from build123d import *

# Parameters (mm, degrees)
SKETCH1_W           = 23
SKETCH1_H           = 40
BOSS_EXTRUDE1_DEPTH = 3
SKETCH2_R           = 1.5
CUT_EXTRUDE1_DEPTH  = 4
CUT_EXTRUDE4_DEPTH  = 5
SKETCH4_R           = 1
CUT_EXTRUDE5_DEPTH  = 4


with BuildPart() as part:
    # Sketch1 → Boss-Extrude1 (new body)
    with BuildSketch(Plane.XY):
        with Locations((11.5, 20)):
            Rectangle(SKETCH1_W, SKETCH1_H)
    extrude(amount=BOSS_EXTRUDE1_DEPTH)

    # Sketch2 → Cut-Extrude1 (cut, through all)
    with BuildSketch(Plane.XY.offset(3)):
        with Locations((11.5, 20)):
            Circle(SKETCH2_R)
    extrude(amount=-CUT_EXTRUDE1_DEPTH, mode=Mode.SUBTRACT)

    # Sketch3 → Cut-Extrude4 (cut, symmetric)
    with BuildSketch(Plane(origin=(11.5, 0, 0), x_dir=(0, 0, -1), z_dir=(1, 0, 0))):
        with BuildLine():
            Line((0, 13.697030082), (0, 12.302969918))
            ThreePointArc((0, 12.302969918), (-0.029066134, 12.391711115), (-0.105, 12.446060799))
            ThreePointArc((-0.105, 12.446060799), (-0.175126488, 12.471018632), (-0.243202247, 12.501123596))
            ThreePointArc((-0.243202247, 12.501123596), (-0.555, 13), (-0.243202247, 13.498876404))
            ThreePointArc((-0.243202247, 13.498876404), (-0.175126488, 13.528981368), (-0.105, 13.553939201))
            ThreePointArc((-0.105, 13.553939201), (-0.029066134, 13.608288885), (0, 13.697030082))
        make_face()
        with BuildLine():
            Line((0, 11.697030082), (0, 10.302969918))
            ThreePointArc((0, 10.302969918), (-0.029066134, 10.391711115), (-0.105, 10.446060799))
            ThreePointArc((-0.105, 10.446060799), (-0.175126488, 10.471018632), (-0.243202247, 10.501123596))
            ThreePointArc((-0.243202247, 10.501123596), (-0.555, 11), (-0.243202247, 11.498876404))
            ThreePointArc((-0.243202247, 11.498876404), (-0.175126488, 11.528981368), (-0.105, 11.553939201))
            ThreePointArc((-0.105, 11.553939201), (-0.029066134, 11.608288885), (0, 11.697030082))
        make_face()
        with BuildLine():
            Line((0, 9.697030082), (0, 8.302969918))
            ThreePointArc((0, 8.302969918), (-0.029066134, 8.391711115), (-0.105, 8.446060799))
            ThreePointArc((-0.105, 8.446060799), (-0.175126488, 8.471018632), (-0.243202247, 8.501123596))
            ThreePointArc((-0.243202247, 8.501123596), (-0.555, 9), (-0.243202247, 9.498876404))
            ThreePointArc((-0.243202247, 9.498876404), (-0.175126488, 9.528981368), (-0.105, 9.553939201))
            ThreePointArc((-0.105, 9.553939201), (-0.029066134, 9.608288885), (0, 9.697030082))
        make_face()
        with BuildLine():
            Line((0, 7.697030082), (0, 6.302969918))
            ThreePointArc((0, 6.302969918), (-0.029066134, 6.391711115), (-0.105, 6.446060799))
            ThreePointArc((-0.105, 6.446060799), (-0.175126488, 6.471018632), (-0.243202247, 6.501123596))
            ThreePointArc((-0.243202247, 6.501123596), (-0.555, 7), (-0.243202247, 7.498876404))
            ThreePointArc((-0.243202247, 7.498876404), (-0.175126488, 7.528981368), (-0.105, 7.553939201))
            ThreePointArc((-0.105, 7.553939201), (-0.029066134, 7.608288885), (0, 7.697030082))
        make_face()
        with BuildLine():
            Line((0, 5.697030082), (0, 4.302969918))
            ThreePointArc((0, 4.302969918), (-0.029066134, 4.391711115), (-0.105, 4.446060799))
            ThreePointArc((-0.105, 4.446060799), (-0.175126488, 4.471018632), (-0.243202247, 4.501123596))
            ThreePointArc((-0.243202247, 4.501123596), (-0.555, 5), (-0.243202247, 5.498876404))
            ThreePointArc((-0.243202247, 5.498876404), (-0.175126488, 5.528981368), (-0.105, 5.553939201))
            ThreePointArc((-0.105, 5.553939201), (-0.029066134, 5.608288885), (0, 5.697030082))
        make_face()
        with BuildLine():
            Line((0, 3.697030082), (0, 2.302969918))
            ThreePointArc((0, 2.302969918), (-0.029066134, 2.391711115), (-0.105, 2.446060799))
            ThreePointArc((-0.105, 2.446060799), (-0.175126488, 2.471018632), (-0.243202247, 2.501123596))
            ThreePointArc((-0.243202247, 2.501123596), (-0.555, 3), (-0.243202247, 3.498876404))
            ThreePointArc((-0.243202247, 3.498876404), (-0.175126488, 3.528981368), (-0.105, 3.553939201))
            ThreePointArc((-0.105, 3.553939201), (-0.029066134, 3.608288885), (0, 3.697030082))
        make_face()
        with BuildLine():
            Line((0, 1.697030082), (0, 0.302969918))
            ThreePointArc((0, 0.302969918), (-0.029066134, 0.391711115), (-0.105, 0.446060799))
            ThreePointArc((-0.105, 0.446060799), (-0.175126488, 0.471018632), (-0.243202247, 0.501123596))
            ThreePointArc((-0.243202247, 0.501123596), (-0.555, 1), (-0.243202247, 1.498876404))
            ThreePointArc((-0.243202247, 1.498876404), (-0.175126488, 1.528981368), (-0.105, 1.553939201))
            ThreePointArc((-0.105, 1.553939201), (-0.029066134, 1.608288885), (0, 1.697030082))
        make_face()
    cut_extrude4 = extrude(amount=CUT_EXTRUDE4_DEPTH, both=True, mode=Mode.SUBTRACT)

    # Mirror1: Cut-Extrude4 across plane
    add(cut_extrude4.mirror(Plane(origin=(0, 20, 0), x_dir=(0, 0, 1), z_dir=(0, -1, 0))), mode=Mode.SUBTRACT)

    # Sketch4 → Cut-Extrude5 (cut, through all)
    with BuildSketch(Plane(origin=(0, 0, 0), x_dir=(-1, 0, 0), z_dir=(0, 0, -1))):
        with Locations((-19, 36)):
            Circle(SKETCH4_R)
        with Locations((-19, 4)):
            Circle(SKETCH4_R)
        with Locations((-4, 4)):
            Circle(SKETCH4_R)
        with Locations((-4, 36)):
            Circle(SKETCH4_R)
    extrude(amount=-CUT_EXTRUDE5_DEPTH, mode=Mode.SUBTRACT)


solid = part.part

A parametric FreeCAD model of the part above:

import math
import FreeCAD as App
import Part
import Sketcher
Q = App.Units.Quantity


def add_polygon(sketch, points):
    """Adds a closed chain of lines whose ends are joined by coincident constraints."""
    first, n = sketch.GeometryCount, len(points)
    for a, b in zip(points, points[1:] + points[:1]):
        sketch.addGeometry(Part.LineSegment(App.Vector(*a, 0), App.Vector(*b, 0)), False)
    for i in range(n):
        sketch.addConstraint(Sketcher.Constraint("Coincident", first + i, 2, first + (i + 1) % n, 1))

doc = App.newDocument("Part")
body = doc.addObject("PartDesign::Body", "Body")

# Sketch on XY plane
sketch1 = body.newObject("Sketcher::SketchObject", "Sketch")
sketch1.AttachmentSupport = (doc.getObject("XY_Plane"), [""])
sketch1.MapMode = "FlatFace"
add_polygon(sketch1, [(0, 40), (0, 0), (23, 0), (23, 40)])  # lines 0-3
sketch1.addConstraint(Sketcher.Constraint("Vertical", 0))
sketch1.addConstraint(Sketcher.Constraint("Horizontal", 1))
sketch1.addConstraint(Sketcher.Constraint("Vertical", 2))
sketch1.addConstraint(Sketcher.Constraint("Horizontal", 3))
sketch1.addConstraint(Sketcher.Constraint("Coincident", 0, 2, -1, 1))
sketch1.addConstraint(Sketcher.Constraint("DistanceX", 1, 1, 1, 2, Q("23 mm")))
sketch1.addConstraint(Sketcher.Constraint("DistanceY", 0, 2, 0, 1, Q("40 mm")))
pad1 = body.newObject("PartDesign::Pad", "Pad")
pad1.Profile = sketch1
pad1.Length = 3

# Sketch on XY plane
sketch2 = body.newObject("Sketcher::SketchObject", "Sketch001")
sketch2.AttachmentSupport = (doc.getObject("XY_Plane"), [""])
sketch2.MapMode = "FlatFace"
sketch2.AttachmentOffset = App.Placement(App.Vector(0, 0, 3), App.Rotation())
sketch2.addGeometry(Part.Circle(App.Vector(11.5, 20, 0), App.Vector(0, 0, 1), 1.5), False)
sketch2.addConstraint(Sketcher.Constraint("Diameter", 0, Q("3 mm")))
sketch2.addConstraint(Sketcher.Constraint("DistanceY", -1, 1, 0, 3, Q("20 mm")))
sketch2.addConstraint(Sketcher.Constraint("DistanceX", -1, 1, 0, 3, Q("11.5 mm")))
pocket1 = body.newObject("PartDesign::Pocket", "Pocket")
pocket1.Profile = sketch2
pocket1.Type = "ThroughAll"

# Sketch on YZ plane
sketch3 = body.newObject("Sketcher::SketchObject", "Sketch002")
sketch3.AttachmentSupport = (doc.getObject("YZ_Plane"), [""])
sketch3.MapMode = "FlatFace"
sketch3.AttachmentOffset = App.Placement(App.Vector(0, 0, 11.5), App.Rotation())
sketch3.addGeometry(Part.LineSegment(App.Vector(12.3, 0, 0), App.Vector(13.7, 0, 0)), False)
sketch3.addGeometry(Part.ArcOfCircle(Part.Circle(App.Vector(13.7, 0.15, 0), App.Vector(0, 0, 1), 0.15), math.radians(-163), math.radians(-90)), False)
sketch3.addGeometry(Part.ArcOfCircle(Part.Circle(App.Vector(12.6, -0.19, 0), App.Vector(0, 0, 1), 1), math.radians(17.46), math.radians(25.99)), False)
sketch3.addGeometry(Part.ArcOfCircle(Part.Circle(App.Vector(13, 0, 0), App.Vector(0, 0, 1), 0.55), math.radians(26), math.radians(154)), False)
sketch3.addGeometry(Part.ArcOfCircle(Part.Circle(App.Vector(13.4, -0.19, 0), App.Vector(0, 0, 1), 1), math.radians(154.01), math.radians(162.54)), False)
sketch3.addGeometry(Part.ArcOfCircle(Part.Circle(App.Vector(12.3, 0.15, 0), App.Vector(0, 0, 1), 0.15), math.radians(-90), math.radians(-17)), False)
sketch3.addGeometry(Part.LineSegment(App.Vector(10.3, 0, 0), App.Vector(11.7, 0, 0)), False)
sketch3.addGeometry(Part.ArcOfCircle(Part.Circle(App.Vector(11.7, 0.15, 0), App.Vector(0, 0, 1), 0.15), math.radians(-163), math.radians(-90)), False)
sketch3.addGeometry(Part.ArcOfCircle(Part.Circle(App.Vector(10.6, -0.19, 0), App.Vector(0, 0, 1), 1), math.radians(17.46), math.radians(25.99)), False)
sketch3.addGeometry(Part.ArcOfCircle(Part.Circle(App.Vector(11, 0, 0), App.Vector(0, 0, 1), 0.55), math.radians(26), math.radians(154)), False)
sketch3.addGeometry(Part.ArcOfCircle(Part.Circle(App.Vector(11.4, -0.19, 0), App.Vector(0, 0, 1), 1), math.radians(154.01), math.radians(162.54)), False)
sketch3.addGeometry(Part.ArcOfCircle(Part.Circle(App.Vector(10.3, 0.15, 0), App.Vector(0, 0, 1), 0.15), math.radians(-90), math.radians(-17)), False)
sketch3.addGeometry(Part.LineSegment(App.Vector(8.3, 0, 0), App.Vector(9.7, 0, 0)), False)
sketch3.addGeometry(Part.ArcOfCircle(Part.Circle(App.Vector(9.7, 0.15, 0), App.Vector(0, 0, 1), 0.15), math.radians(-163), math.radians(-90)), False)
sketch3.addGeometry(Part.ArcOfCircle(Part.Circle(App.Vector(8.6, -0.19, 0), App.Vector(0, 0, 1), 1), math.radians(17.46), math.radians(25.99)), False)
sketch3.addGeometry(Part.ArcOfCircle(Part.Circle(App.Vector(9, 0, 0), App.Vector(0, 0, 1), 0.55), math.radians(26), math.radians(154)), False)
sketch3.addGeometry(Part.ArcOfCircle(Part.Circle(App.Vector(9.4, -0.19, 0), App.Vector(0, 0, 1), 1), math.radians(154.01), math.radians(162.54)), False)
sketch3.addGeometry(Part.ArcOfCircle(Part.Circle(App.Vector(8.3, 0.15, 0), App.Vector(0, 0, 1), 0.15), math.radians(-90), math.radians(-17)), False)
sketch3.addGeometry(Part.LineSegment(App.Vector(6.3, 0, 0), App.Vector(7.7, 0, 0)), False)
sketch3.addGeometry(Part.ArcOfCircle(Part.Circle(App.Vector(7.7, 0.15, 0), App.Vector(0, 0, 1), 0.15), math.radians(-163), math.radians(-90)), False)
sketch3.addGeometry(Part.ArcOfCircle(Part.Circle(App.Vector(6.6, -0.19, 0), App.Vector(0, 0, 1), 1), math.radians(17.46), math.radians(25.99)), False)
sketch3.addGeometry(Part.ArcOfCircle(Part.Circle(App.Vector(7, 0, 0), App.Vector(0, 0, 1), 0.55), math.radians(26), math.radians(154)), False)
sketch3.addGeometry(Part.ArcOfCircle(Part.Circle(App.Vector(7.4, -0.19, 0), App.Vector(0, 0, 1), 1), math.radians(154.01), math.radians(162.54)), False)
sketch3.addGeometry(Part.ArcOfCircle(Part.Circle(App.Vector(6.3, 0.15, 0), App.Vector(0, 0, 1), 0.15), math.radians(-90), math.radians(-17)), False)
sketch3.addGeometry(Part.LineSegment(App.Vector(4.3, 0, 0), App.Vector(5.7, 0, 0)), False)
sketch3.addGeometry(Part.ArcOfCircle(Part.Circle(App.Vector(5.7, 0.15, 0), App.Vector(0, 0, 1), 0.15), math.radians(-163), math.radians(-90)), False)
sketch3.addGeometry(Part.ArcOfCircle(Part.Circle(App.Vector(4.6, -0.19, 0), App.Vector(0, 0, 1), 1), math.radians(17.46), math.radians(25.99)), False)
sketch3.addGeometry(Part.ArcOfCircle(Part.Circle(App.Vector(5, 0, 0), App.Vector(0, 0, 1), 0.55), math.radians(26), math.radians(154)), False)
sketch3.addGeometry(Part.ArcOfCircle(Part.Circle(App.Vector(5.4, -0.19, 0), App.Vector(0, 0, 1), 1), math.radians(154.01), math.radians(162.54)), False)
sketch3.addGeometry(Part.ArcOfCircle(Part.Circle(App.Vector(4.3, 0.15, 0), App.Vector(0, 0, 1), 0.15), math.radians(-90), math.radians(-17)), False)
sketch3.addGeometry(Part.LineSegment(App.Vector(2.3, 0, 0), App.Vector(3.7, 0, 0)), False)
sketch3.addGeometry(Part.ArcOfCircle(Part.Circle(App.Vector(3.7, 0.15, 0), App.Vector(0, 0, 1), 0.15), math.radians(-163), math.radians(-90)), False)
sketch3.addGeometry(Part.ArcOfCircle(Part.Circle(App.Vector(2.6, -0.19, 0), App.Vector(0, 0, 1), 1), math.radians(17.46), math.radians(25.99)), False)
sketch3.addGeometry(Part.ArcOfCircle(Part.Circle(App.Vector(3, 0, 0), App.Vector(0, 0, 1), 0.55), math.radians(26), math.radians(154)), False)
sketch3.addGeometry(Part.ArcOfCircle(Part.Circle(App.Vector(3.4, -0.19, 0), App.Vector(0, 0, 1), 1), math.radians(154.01), math.radians(162.54)), False)
sketch3.addGeometry(Part.ArcOfCircle(Part.Circle(App.Vector(2.3, 0.15, 0), App.Vector(0, 0, 1), 0.15), math.radians(-90), math.radians(-17)), False)
sketch3.addGeometry(Part.LineSegment(App.Vector(0.3, 0, 0), App.Vector(1.7, 0, 0)), False)
sketch3.addGeometry(Part.ArcOfCircle(Part.Circle(App.Vector(1.7, 0.15, 0), App.Vector(0, 0, 1), 0.15), math.radians(-163), math.radians(-90)), False)
sketch3.addGeometry(Part.ArcOfCircle(Part.Circle(App.Vector(0.6, -0.19, 0), App.Vector(0, 0, 1), 1), math.radians(17.46), math.radians(25.99)), False)
sketch3.addGeometry(Part.ArcOfCircle(Part.Circle(App.Vector(1, 0, 0), App.Vector(0, 0, 1), 0.55), math.radians(26), math.radians(154)), False)
sketch3.addGeometry(Part.ArcOfCircle(Part.Circle(App.Vector(1.4, -0.19, 0), App.Vector(0, 0, 1), 1), math.radians(154.01), math.radians(162.54)), False)
sketch3.addGeometry(Part.ArcOfCircle(Part.Circle(App.Vector(0.3, 0.15, 0), App.Vector(0, 0, 1), 0.15), math.radians(-90), math.radians(-17)), False)
sketch3.addConstraint(Sketcher.Constraint("Tangent", 0, 2, 1, 2))
sketch3.addConstraint(Sketcher.Constraint("Tangent", 1, 1, 2, 1))
sketch3.addConstraint(Sketcher.Constraint("Tangent", 2, 2, 3, 1))
sketch3.addConstraint(Sketcher.Constraint("Tangent", 3, 2, 4, 1))
sketch3.addConstraint(Sketcher.Constraint("Tangent", 4, 2, 5, 2))
sketch3.addConstraint(Sketcher.Constraint("Tangent", 5, 1, 0, 1))
sketch3.addConstraint(Sketcher.Constraint("Tangent", 6, 2, 7, 2))
sketch3.addConstraint(Sketcher.Constraint("Tangent", 7, 1, 8, 1))
sketch3.addConstraint(Sketcher.Constraint("Tangent", 8, 2, 9, 1))
sketch3.addConstraint(Sketcher.Constraint("Tangent", 9, 2, 10, 1))
sketch3.addConstraint(Sketcher.Constraint("Tangent", 10, 2, 11, 2))
sketch3.addConstraint(Sketcher.Constraint("Tangent", 11, 1, 6, 1))
sketch3.addConstraint(Sketcher.Constraint("Tangent", 12, 2, 13, 2))
sketch3.addConstraint(Sketcher.Constraint("Tangent", 13, 1, 14, 1))
sketch3.addConstraint(Sketcher.Constraint("Tangent", 14, 2, 15, 1))
sketch3.addConstraint(Sketcher.Constraint("Tangent", 15, 2, 16, 1))
sketch3.addConstraint(Sketcher.Constraint("Tangent", 16, 2, 17, 2))
sketch3.addConstraint(Sketcher.Constraint("Tangent", 17, 1, 12, 1))
sketch3.addConstraint(Sketcher.Constraint("Tangent", 18, 2, 19, 2))
sketch3.addConstraint(Sketcher.Constraint("Tangent", 19, 1, 20, 1))
sketch3.addConstraint(Sketcher.Constraint("Tangent", 20, 2, 21, 1))
sketch3.addConstraint(Sketcher.Constraint("Tangent", 21, 2, 22, 1))
sketch3.addConstraint(Sketcher.Constraint("Tangent", 22, 2, 23, 2))
sketch3.addConstraint(Sketcher.Constraint("Tangent", 23, 1, 18, 1))
sketch3.addConstraint(Sketcher.Constraint("Tangent", 24, 2, 25, 2))
sketch3.addConstraint(Sketcher.Constraint("Tangent", 25, 1, 26, 1))
sketch3.addConstraint(Sketcher.Constraint("Tangent", 26, 2, 27, 1))
sketch3.addConstraint(Sketcher.Constraint("Tangent", 27, 2, 28, 1))
sketch3.addConstraint(Sketcher.Constraint("Tangent", 28, 2, 29, 2))
sketch3.addConstraint(Sketcher.Constraint("Tangent", 29, 1, 24, 1))
sketch3.addConstraint(Sketcher.Constraint("Tangent", 30, 2, 31, 2))
sketch3.addConstraint(Sketcher.Constraint("Tangent", 31, 1, 32, 1))
sketch3.addConstraint(Sketcher.Constraint("Tangent", 32, 2, 33, 1))
sketch3.addConstraint(Sketcher.Constraint("Tangent", 33, 2, 34, 1))
sketch3.addConstraint(Sketcher.Constraint("Tangent", 34, 2, 35, 2))
sketch3.addConstraint(Sketcher.Constraint("Tangent", 35, 1, 30, 1))
sketch3.addConstraint(Sketcher.Constraint("Tangent", 36, 2, 37, 2))
sketch3.addConstraint(Sketcher.Constraint("Tangent", 37, 1, 38, 1))
sketch3.addConstraint(Sketcher.Constraint("Tangent", 38, 2, 39, 1))
sketch3.addConstraint(Sketcher.Constraint("Tangent", 39, 2, 40, 1))
sketch3.addConstraint(Sketcher.Constraint("Tangent", 40, 2, 41, 2))
sketch3.addConstraint(Sketcher.Constraint("Tangent", 41, 1, 36, 1))
sketch3.addConstraint(Sketcher.Constraint("Horizontal", 0))
sketch3.addConstraint(Sketcher.Constraint("Horizontal", 6))
sketch3.addConstraint(Sketcher.Constraint("Horizontal", 12))
sketch3.addConstraint(Sketcher.Constraint("Horizontal", 18))
sketch3.addConstraint(Sketcher.Constraint("Horizontal", 24))
sketch3.addConstraint(Sketcher.Constraint("Horizontal", 30))
sketch3.addConstraint(Sketcher.Constraint("Horizontal", 36))
sketch3.addConstraint(Sketcher.Constraint("Equal", 2, 4))
sketch3.addConstraint(Sketcher.Constraint("Equal", 1, 5))
sketch3.addConstraint(Sketcher.Constraint("Equal", 5, 7))
sketch3.addConstraint(Sketcher.Constraint("Equal", 4, 8))
sketch3.addConstraint(Sketcher.Constraint("Equal", 3, 9))
sketch3.addConstraint(Sketcher.Constraint("Equal", 8, 10))
sketch3.addConstraint(Sketcher.Constraint("Equal", 7, 11))
sketch3.addConstraint(Sketcher.Constraint("Equal", 11, 13))
sketch3.addConstraint(Sketcher.Constraint("Equal", 10, 14))
sketch3.addConstraint(Sketcher.Constraint("Equal", 9, 15))
sketch3.addConstraint(Sketcher.Constraint("Equal", 14, 16))
sketch3.addConstraint(Sketcher.Constraint("Equal", 13, 17))
sketch3.addConstraint(Sketcher.Constraint("Equal", 17, 19))
sketch3.addConstraint(Sketcher.Constraint("Equal", 16, 20))
sketch3.addConstraint(Sketcher.Constraint("Equal", 15, 21))
sketch3.addConstraint(Sketcher.Constraint("Equal", 20, 22))
sketch3.addConstraint(Sketcher.Constraint("Equal", 19, 23))
sketch3.addConstraint(Sketcher.Constraint("Equal", 23, 25))
sketch3.addConstraint(Sketcher.Constraint("Equal", 22, 26))
sketch3.addConstraint(Sketcher.Constraint("Equal", 21, 27))
sketch3.addConstraint(Sketcher.Constraint("Equal", 26, 28))
sketch3.addConstraint(Sketcher.Constraint("Equal", 25, 29))
sketch3.addConstraint(Sketcher.Constraint("Equal", 29, 31))
sketch3.addConstraint(Sketcher.Constraint("Equal", 28, 32))
sketch3.addConstraint(Sketcher.Constraint("Equal", 27, 33))
sketch3.addConstraint(Sketcher.Constraint("Equal", 32, 34))
sketch3.addConstraint(Sketcher.Constraint("Equal", 31, 35))
sketch3.addConstraint(Sketcher.Constraint("Equal", 35, 37))
sketch3.addConstraint(Sketcher.Constraint("Equal", 34, 38))
sketch3.addConstraint(Sketcher.Constraint("Equal", 33, 39))
sketch3.addConstraint(Sketcher.Constraint("Equal", 38, 40))
sketch3.addConstraint(Sketcher.Constraint("Equal", 37, 41))
sketch3.addConstraint(Sketcher.Constraint("PointOnObject", 3, 3, -1))
sketch3.addConstraint(Sketcher.Constraint("PointOnObject", 9, 3, -1))
sketch3.addConstraint(Sketcher.Constraint("PointOnObject", 15, 3, -1))
sketch3.addConstraint(Sketcher.Constraint("PointOnObject", 21, 3, -1))
sketch3.addConstraint(Sketcher.Constraint("PointOnObject", 27, 3, -1))
sketch3.addConstraint(Sketcher.Constraint("PointOnObject", 33, 3, -1))
sketch3.addConstraint(Sketcher.Constraint("PointOnObject", 39, 3, -1))
sketch3.addConstraint(Sketcher.Constraint("PointOnObject", 0, 2, -1))
sketch3.addConstraint(Sketcher.Constraint("PointOnObject", 6, 2, -1))
sketch3.addConstraint(Sketcher.Constraint("PointOnObject", 12, 2, -1))
sketch3.addConstraint(Sketcher.Constraint("PointOnObject", 18, 2, -1))
sketch3.addConstraint(Sketcher.Constraint("PointOnObject", 24, 2, -1))
sketch3.addConstraint(Sketcher.Constraint("PointOnObject", 30, 2, -1))
sketch3.addConstraint(Sketcher.Constraint("PointOnObject", 36, 2, -1))
sketch3.addConstraint(Sketcher.Constraint("Horizontal", 2, 3, 4, 3))
sketch3.addConstraint(Sketcher.Constraint("Horizontal", 4, 3, 8, 3))
sketch3.addConstraint(Sketcher.Constraint("Horizontal", 8, 3, 10, 3))
sketch3.addConstraint(Sketcher.Constraint("Horizontal", 10, 3, 14, 3))
sketch3.addConstraint(Sketcher.Constraint("Horizontal", 14, 3, 16, 3))
sketch3.addConstraint(Sketcher.Constraint("Horizontal", 16, 3, 20, 3))
sketch3.addConstraint(Sketcher.Constraint("Horizontal", 20, 3, 22, 3))
sketch3.addConstraint(Sketcher.Constraint("Horizontal", 22, 3, 26, 3))
sketch3.addConstraint(Sketcher.Constraint("Horizontal", 26, 3, 28, 3))
sketch3.addConstraint(Sketcher.Constraint("Horizontal", 28, 3, 32, 3))
sketch3.addConstraint(Sketcher.Constraint("Horizontal", 32, 3, 34, 3))
sketch3.addConstraint(Sketcher.Constraint("Horizontal", 34, 3, 38, 3))
sketch3.addConstraint(Sketcher.Constraint("Horizontal", 38, 3, 40, 3))
sketch3.addConstraint(Sketcher.Constraint("Radius", 2, Q("1 mm")))
sketch3.addConstraint(Sketcher.Constraint("Radius", 1, Q("0.15 mm")))
sketch3.addConstraint(Sketcher.Constraint("DistanceX", -1, 1, 3, 3, Q("13 mm")))
sketch3.addConstraint(Sketcher.Constraint("DistanceX", -1, 1, 9, 3, Q("11 mm")))
sketch3.addConstraint(Sketcher.Constraint("DistanceX", -1, 1, 15, 3, Q("9 mm")))
sketch3.addConstraint(Sketcher.Constraint("DistanceX", -1, 1, 21, 3, Q("7 mm")))
sketch3.addConstraint(Sketcher.Constraint("DistanceX", -1, 1, 27, 3, Q("5 mm")))
sketch3.addConstraint(Sketcher.Constraint("DistanceX", -1, 1, 33, 3, Q("3 mm")))
sketch3.addConstraint(Sketcher.Constraint("DistanceX", -1, 1, 39, 3, Q("1 mm")))
sketch3.addConstraint(Sketcher.Constraint("Radius", 3, Q("0.555 mm")))
sketch3.addConstraint(Sketcher.Constraint("DistanceX", -1, 1, 2, 3, Q("12.6 mm")))
pocket2 = body.newObject("PartDesign::Pocket", "Pocket001")
pocket2.Profile = sketch3
pocket2.Length = 10
pocket2.Midplane = True
doc.recompute()

datumplane = body.newObject("PartDesign::Plane", "DatumPlane")
datumplane.AttachmentSupport = (doc.getObject("XZ_Plane"), [""])
datumplane.MapMode = "FlatFace"
datumplane.AttachmentOffset = App.Placement(App.Vector(0, 0, -20), App.Rotation())
mirrored = body.newObject("PartDesign::Mirrored", "Mirrored")
mirrored.Originals = [pocket2]
mirrored.MirrorPlane = (datumplane, [""])
body.Tip = mirrored

# Sketch on XY plane
sketch4 = body.newObject("Sketcher::SketchObject", "Sketch003")
sketch4.AttachmentSupport = (doc.getObject("XY_Plane"), [""])
sketch4.MapMode = "FlatFace"
sketch4.addGeometry(Part.Circle(App.Vector(19, 36, 0), App.Vector(0, 0, 1), 1), False)
sketch4.addGeometry(Part.Circle(App.Vector(19, 4, 0), App.Vector(0, 0, 1), 1), False)
sketch4.addGeometry(Part.Circle(App.Vector(4, 4, 0), App.Vector(0, 0, 1), 1), False)
sketch4.addGeometry(Part.Circle(App.Vector(4, 36, 0), App.Vector(0, 0, 1), 1), False)
sketch4.addConstraint(Sketcher.Constraint("Equal", 0, 1))
sketch4.addConstraint(Sketcher.Constraint("Equal", 1, 2))
sketch4.addConstraint(Sketcher.Constraint("Equal", 2, 3))
sketch4.addConstraint(Sketcher.Constraint("Horizontal", 1, 3, 2, 3))
sketch4.addConstraint(Sketcher.Constraint("Horizontal", 0, 3, 3, 3))
sketch4.addConstraint(Sketcher.Constraint("Vertical", 0, 3, 1, 3))
sketch4.addConstraint(Sketcher.Constraint("Vertical", 2, 3, 3, 3))
sketch4.addConstraint(Sketcher.Constraint("Diameter", 0, Q("2 mm")))
sketch4.addConstraint(Sketcher.Constraint("DistanceX", -1, 1, 0, 3, Q("19 mm")))
sketch4.addConstraint(Sketcher.Constraint("DistanceY", -1, 1, 0, 3, Q("36 mm")))
sketch4.addConstraint(Sketcher.Constraint("DistanceY", -1, 1, 1, 3, Q("4 mm")))
sketch4.addConstraint(Sketcher.Constraint("DistanceX", -1, 1, 2, 3, Q("4 mm")))
pocket3 = body.newObject("PartDesign::Pocket", "Pocket002")
pocket3.Profile = sketch4
pocket3.Type = "ThroughAll"
pocket3.Reversed = True

doc.recompute()
